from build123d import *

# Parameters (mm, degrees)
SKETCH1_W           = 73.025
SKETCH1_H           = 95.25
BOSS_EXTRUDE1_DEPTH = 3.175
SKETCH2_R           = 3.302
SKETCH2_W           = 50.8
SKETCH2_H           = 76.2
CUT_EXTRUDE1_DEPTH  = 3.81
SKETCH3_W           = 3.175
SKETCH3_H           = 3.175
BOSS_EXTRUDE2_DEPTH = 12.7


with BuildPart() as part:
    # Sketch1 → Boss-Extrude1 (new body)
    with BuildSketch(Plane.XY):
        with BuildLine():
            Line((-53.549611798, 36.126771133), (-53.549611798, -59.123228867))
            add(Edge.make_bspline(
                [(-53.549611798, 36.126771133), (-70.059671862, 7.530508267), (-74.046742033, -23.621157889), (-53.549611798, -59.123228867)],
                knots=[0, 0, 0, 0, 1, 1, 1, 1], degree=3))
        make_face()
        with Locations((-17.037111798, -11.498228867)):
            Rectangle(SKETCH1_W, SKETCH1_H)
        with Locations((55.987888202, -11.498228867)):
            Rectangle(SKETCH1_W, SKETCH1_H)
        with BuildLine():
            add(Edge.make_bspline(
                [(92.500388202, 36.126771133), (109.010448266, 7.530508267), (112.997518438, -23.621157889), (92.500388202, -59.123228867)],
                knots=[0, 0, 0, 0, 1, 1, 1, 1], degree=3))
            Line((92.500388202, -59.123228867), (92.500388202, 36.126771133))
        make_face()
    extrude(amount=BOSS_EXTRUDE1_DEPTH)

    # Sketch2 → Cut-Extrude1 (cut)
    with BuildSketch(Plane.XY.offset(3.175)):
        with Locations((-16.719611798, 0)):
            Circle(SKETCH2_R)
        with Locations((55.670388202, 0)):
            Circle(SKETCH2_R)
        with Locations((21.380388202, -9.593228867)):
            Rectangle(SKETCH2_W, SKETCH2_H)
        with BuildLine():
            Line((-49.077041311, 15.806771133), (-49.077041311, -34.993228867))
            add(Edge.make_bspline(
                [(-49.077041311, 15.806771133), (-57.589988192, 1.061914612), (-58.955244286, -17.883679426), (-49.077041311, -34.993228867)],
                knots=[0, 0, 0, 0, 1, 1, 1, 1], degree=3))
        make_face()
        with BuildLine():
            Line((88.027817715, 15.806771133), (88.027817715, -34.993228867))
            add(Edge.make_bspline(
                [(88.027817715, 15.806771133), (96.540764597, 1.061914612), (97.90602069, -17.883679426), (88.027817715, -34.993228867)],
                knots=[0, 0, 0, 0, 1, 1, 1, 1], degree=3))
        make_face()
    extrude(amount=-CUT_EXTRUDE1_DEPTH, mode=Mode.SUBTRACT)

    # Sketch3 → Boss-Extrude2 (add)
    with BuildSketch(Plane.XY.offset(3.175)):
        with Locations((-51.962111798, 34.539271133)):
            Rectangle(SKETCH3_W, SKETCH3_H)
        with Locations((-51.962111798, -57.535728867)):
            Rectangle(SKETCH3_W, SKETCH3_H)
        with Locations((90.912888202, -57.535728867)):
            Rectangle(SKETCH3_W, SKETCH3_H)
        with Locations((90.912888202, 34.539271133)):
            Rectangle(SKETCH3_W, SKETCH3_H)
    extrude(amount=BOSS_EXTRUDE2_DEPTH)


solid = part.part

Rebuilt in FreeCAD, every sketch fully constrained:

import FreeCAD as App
import Part
import Sketcher
Q = App.Units.Quantity

doc = App.newDocument("Part")
body = doc.addObject("PartDesign::Body", "Body")

sketch1 = body.newObject("Sketcher::SketchObject", "Sketch")
sketch1.AttachmentSupport = (doc.getObject("XY_Plane"), [""])
sketch1.MapMode = "FlatFace"
sketch1.addGeometry([
    Part.BSplineCurve([App.Vector(-53.549612, 36.126771, 0), App.Vector(-70.059672, 7.530508, 0), App.Vector(-74.046742, -23.621158, 0), App.Vector(-53.549612, -59.123229, 0)], [4, 4], [0, 1], False, 3, [1, 1, 1, 1], False),
    Part.LineSegment(App.Vector(-53.549612, -59.123229, 0), App.Vector(92.500388, -59.123229, 0)),
    Part.BSplineCurve([App.Vector(92.500388, 36.126771, 0), App.Vector(109.010448, 7.530508, 0), App.Vector(112.997518, -23.621158, 0), App.Vector(92.500388, -59.123229, 0)], [4, 4], [0, 1], False, 3, [1, 1, 1, 1], False),
    Part.LineSegment(App.Vector(92.500388, 36.126771, 0), App.Vector(-53.549612, 36.126771, 0)),
], False)
sketch1.addConstraint([
    Sketcher.Constraint("Block", 0),
    Sketcher.Constraint("Block", 2),
    Sketcher.Constraint("Coincident", 0, 2, 1, 1),
    Sketcher.Constraint("Coincident", 1, 2, 2, 2),
    Sketcher.Constraint("Coincident", 2, 1, 3, 1),
    Sketcher.Constraint("Coincident", 3, 2, 0, 1),
])
pad1 = body.newObject("PartDesign::Pad", "Pad")
pad1.Profile = sketch1
pad1.Length = Q("0.125 in")

sketch2 = body.newObject("Sketcher::SketchObject", "Sketch001")
sketch2.AttachmentSupport = (doc.getObject("XY_Plane"), [""])
sketch2.MapMode = "FlatFace"
sketch2.AttachmentOffset = App.Placement(App.Vector(0, 0, 0.125 * 25.4), App.Rotation())
sketch2.addGeometry([
    Part.Circle(App.Vector(-16.719612, 0, 0), App.Vector(0, 0, 1), 3.302),
    Part.Circle(App.Vector(55.670388, 0, 0), App.Vector(0, 0, 1), 3.302),
    Part.LineSegment(App.Vector(-4.019612, 28.506771, 0), App.Vector(-4.019612, -47.693229, 0)),
    Part.LineSegment(App.Vector(-4.019612, -47.693229, 0), App.Vector(46.780388, -47.693229, 0)),
    Part.LineSegment(App.Vector(46.780388, -47.693229, 0), App.Vector(46.780388, 28.506771, 0)),
    Part.LineSegment(App.Vector(46.780388, 28.506771, 0), App.Vector(-4.019612, 28.506771, 0)),
    Part.LineSegment(App.Vector(-49.077041, -34.993229, 0), App.Vector(-49.077041, 15.806771, 0)),
    Part.BSplineCurve([App.Vector(-49.077041, 15.806771, 0), App.Vector(-57.589988, 1.061915, 0), App.Vector(-58.955244, -17.883679, 0), App.Vector(-49.077041, -34.993229, 0)], [4, 4], [0, 1], False, 3, [1, 1, 1, 1], False),
    Part.LineSegment(App.Vector(88.027818, 15.806771, 0), App.Vector(88.027818, -34.993229, 0)),
    Part.BSplineCurve([App.Vector(88.027818, 15.806771, 0), App.Vector(96.540765, 1.061915, 0), App.Vector(97.906021, -17.883679, 0), App.Vector(88.027818, -34.993229, 0)], [4, 4], [0, 1], False, 3, [1, 1, 1, 1], False),
], False)
sketch2.addConstraint([
    Sketcher.Constraint("Block", 7),
    Sketcher.Constraint("Block", 9),
    Sketcher.Constraint("Coincident", 2, 2, 3, 1),
    Sketcher.Constraint("Coincident", 3, 2, 4, 1),
    Sketcher.Constraint("Coincident", 4, 2, 5, 1),
    Sketcher.Constraint("Coincident", 5, 2, 2, 1),
    Sketcher.Constraint("Coincident", 6, 1, 7, 2),
    Sketcher.Constraint("Coincident", 7, 1, 6, 2),
    Sketcher.Constraint("Coincident", 8, 1, 9, 1),
    Sketcher.Constraint("Coincident", 9, 2, 8, 2),
    Sketcher.Constraint("Vertical", 2),
    Sketcher.Constraint("Horizontal", 3),
    Sketcher.Constraint("Vertical", 4),
    Sketcher.Constraint("Horizontal", 5),
    Sketcher.Constraint("Equal", 0, 1),
    Sketcher.Constraint("PointOnObject", 0, 3, -1),
    Sketcher.Constraint("PointOnObject", 1, 3, -1),
    Sketcher.Constraint("Equal", 5, 6),
    Sketcher.Constraint("Diameter", 0, Q("0.26 in")),
    Sketcher.Constraint("DistanceY", 2, 2, 2, 1, Q("3 in")),
    Sketcher.Constraint("DistanceX", 0, 3, 2, 2, Q("0.5 in")),
    Sketcher.Constraint("DistanceY", 2, 2, 6, 1, Q("0.5 in")),
    Sketcher.Constraint("DistanceX", 0, 3, 1, 3, Q("2.85 in")),
    Sketcher.Constraint("DistanceX", 0, 3, -1, 1, 16.719612),
])
pocket1 = body.newObject("PartDesign::Pocket", "Pocket")
pocket1.Profile = sketch2
pocket1.Length = Q("0.15 in")

sketch3 = body.newObject("Sketcher::SketchObject", "Sketch002")
sketch3.AttachmentSupport = (doc.getObject("XY_Plane"), [""])
sketch3.MapMode = "FlatFace"
sketch3.AttachmentOffset = App.Placement(App.Vector(0, 0, 0.125 * 25.4), App.Rotation())
sketch3.addGeometry([
    Part.LineSegment(App.Vector(-53.5, 36.1, 0), App.Vector(-53.5, 33, 0)),
    Part.LineSegment(App.Vector(-53.5, 33, 0), App.Vector(-50.4, 33, 0)),
    Part.LineSegment(App.Vector(-50.4, 33, 0), App.Vector(-50.4, 36.1, 0)),
    Part.LineSegment(App.Vector(-50.4, 36.1, 0), App.Vector(-53.5, 36.1, 0)),
    Part.LineSegment(App.Vector(-53.5, -55.9, 0), App.Vector(-53.5, -59.1, 0)),
    Part.LineSegment(App.Vector(-53.5, -59.1, 0), App.Vector(-50.4, -59.1, 0)),
    Part.LineSegment(App.Vector(-50.4, -59.1, 0), App.Vector(-50.4, -55.9, 0)),
    Part.LineSegment(App.Vector(-50.4, -55.9, 0), App.Vector(-53.5, -55.9, 0)),
    Part.LineSegment(App.Vector(89.3, -55.9, 0), App.Vector(89.3, -59.1, 0)),
    Part.LineSegment(App.Vector(89.3, -59.1, 0), App.Vector(92.5, -59.1, 0)),
    Part.LineSegment(App.Vector(92.5, -59.1, 0), App.Vector(92.5, -55.9, 0)),
    Part.LineSegment(App.Vector(92.5, -55.9, 0), App.Vector(89.3, -55.9, 0)),
    Part.LineSegment(App.Vector(89.3, 36.1, 0), App.Vector(89.3, 33, 0)),
    Part.LineSegment(App.Vector(89.3, 33, 0), App.Vector(92.5, 33, 0)),
    Part.LineSegment(App.Vector(92.5, 33, 0), App.Vector(92.5, 36.1, 0)),
    Part.LineSegment(App.Vector(92.5, 36.1, 0), App.Vector(89.3, 36.1, 0)),
], False)
sketch3.addConstraint([
    Sketcher.Constraint("Coincident", 0, 2, 1, 1),
    Sketcher.Constraint("Coincident", 1, 2, 2, 1),
    Sketcher.Constraint("Coincident", 2, 2, 3, 1),
    Sketcher.Constraint("Coincident", 3, 2, 0, 1),
    Sketcher.Constraint("Coincident", 4, 2, 5, 1),
    Sketcher.Constraint("Coincident", 5, 2, 6, 1),
    Sketcher.Constraint("Coincident", 6, 2, 7, 1),
    Sketcher.Constraint("Coincident", 7, 2, 4, 1),
    Sketcher.Constraint("Coincident", 8, 2, 9, 1),
    Sketcher.Constraint("Coincident", 9, 2, 10, 1),
    Sketcher.Constraint("Coincident", 10, 2, 11, 1),
    Sketcher.Constraint("Coincident", 11, 2, 8, 1),
    Sketcher.Constraint("Coincident", 12, 2, 13, 1),
    Sketcher.Constraint("Coincident", 13, 2, 14, 1),
    Sketcher.Constraint("Coincident", 14, 2, 15, 1),
    Sketcher.Constraint("Coincident", 15, 2, 12, 1),
    Sketcher.Constraint("Vertical", 0),
    Sketcher.Constraint("Horizontal", 1),
    Sketcher.Constraint("Vertical", 2),
    Sketcher.Constraint("Horizontal", 3),
    Sketcher.Constraint("Vertical", 4),
    Sketcher.Constraint("Horizontal", 5),
    Sketcher.Constraint("Vertical", 6),
    Sketcher.Constraint("Horizontal", 7),
    Sketcher.Constraint("Vertical", 8),
    Sketcher.Constraint("Horizontal", 9),
    Sketcher.Constraint("Vertical", 10),
    Sketcher.Constraint("Horizontal", 11),
    Sketcher.Constraint("Vertical", 12),
    Sketcher.Constraint("Horizontal", 13),
    Sketcher.Constraint("Vertical", 14),
    Sketcher.Constraint("Horizontal", 15),
    Sketcher.Constraint("Horizontal", 5, 2, 8, 2),
    Sketcher.Constraint("Horizontal", 7, 2, 10, 2),
    Sketcher.Constraint("Horizontal", 1, 2, 12, 2),
    Sketcher.Constraint("Horizontal", 3, 2, 14, 2),
    Sketcher.Constraint("Vertical", 3, 2, 4, 2),
    Sketcher.Constraint("Vertical", 2, 2, 5, 2),
    Sketcher.Constraint("Vertical", 11, 2, 12, 2),
    Sketcher.Constraint("Vertical", 10, 2, 13, 2),
    Sketcher.Constraint("Equal", 7, 9),
    Sketcher.Constraint("Equal", 15, 0),
    Sketcher.Constraint("Equal", 2, 4),
    Sketcher.Constraint("DistanceY", 6, 2, 1, 2, Q("3.5 in")),
    Sketcher.Constraint("DistanceX", 5, 2, 8, 2, Q("5.5 in")),
    Sketcher.Constraint("DistanceX", 1, 1, 1, 2, Q("0.125 in")),
    Sketcher.Constraint("DistanceX", 0, 2, -1, 1, 53.549612),
    Sketcher.Constraint("DistanceY", -1, 1, 0, 2, 32.951771),
])
pad2 = body.newObject("PartDesign::Pad", "Pad001")
pad2.Profile = sketch3
pad2.Length = Q("0.5 in")

doc.recompute()
